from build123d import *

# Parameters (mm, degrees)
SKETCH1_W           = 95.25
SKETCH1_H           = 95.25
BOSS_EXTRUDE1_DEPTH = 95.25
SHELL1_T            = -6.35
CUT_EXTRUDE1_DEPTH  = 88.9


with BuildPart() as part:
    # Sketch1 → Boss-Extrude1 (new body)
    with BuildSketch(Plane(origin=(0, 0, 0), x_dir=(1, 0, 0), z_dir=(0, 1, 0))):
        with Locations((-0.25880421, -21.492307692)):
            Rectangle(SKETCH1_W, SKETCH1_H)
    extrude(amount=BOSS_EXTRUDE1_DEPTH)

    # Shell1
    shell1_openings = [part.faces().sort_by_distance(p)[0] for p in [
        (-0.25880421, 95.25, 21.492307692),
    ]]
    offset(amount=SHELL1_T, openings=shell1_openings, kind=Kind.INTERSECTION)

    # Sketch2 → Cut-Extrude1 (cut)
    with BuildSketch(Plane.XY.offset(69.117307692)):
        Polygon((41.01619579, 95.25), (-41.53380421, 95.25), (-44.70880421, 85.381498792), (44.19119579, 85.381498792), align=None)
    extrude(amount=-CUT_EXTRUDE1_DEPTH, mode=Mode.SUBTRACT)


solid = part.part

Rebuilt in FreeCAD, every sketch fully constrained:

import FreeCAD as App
import Part
import Sketcher
from FreeCAD import Vector
Q = App.Units.Quantity


def faces_at(feature, points):
    """Names of the faces that lie closest to the given points."""
    faces = feature.Shape.Faces
    near = lambda p: min(range(len(faces)), key=lambda i: faces[i].distToShape(Part.Vertex(*p))[0])
    return sorted({f"Face{near(p) + 1}" for p in points})


def add_polygon(sketch, points):
    """Adds a closed chain of lines whose ends are joined by coincident constraints."""
    first, n = sketch.GeometryCount, len(points)
    for a, b in zip(points, points[1:] + points[:1]):
        sketch.addGeometry(Part.LineSegment(App.Vector(*a, 0), App.Vector(*b, 0)), False)
    for i in range(n):
        sketch.addConstraint(Sketcher.Constraint("Coincident", first + i, 2, first + (i + 1) % n, 1))

doc = App.newDocument("Part")
body = doc.addObject("PartDesign::Body", "Body")

# Sketch on XZ plane
sketch1 = body.newObject("Sketcher::SketchObject", "Sketch")
sketch1.AttachmentSupport = (doc.getObject("XZ_Plane"), [""])
sketch1.MapMode = "FlatFace"
add_polygon(sketch1, [(-47.883804, -26.132692), (-47.883804, 69.117308), (47.366196, 69.117308), (47.366196, -26.132692)])  # lines 0-3
sketch1.addConstraint([
    Sketcher.Constraint("Vertical", 0),
    Sketcher.Constraint("Horizontal", 1),
    Sketcher.Constraint("Vertical", 2),
    Sketcher.Constraint("Horizontal", 3),
    Sketcher.Constraint("Equal", 3, 0),
    Sketcher.Constraint("DistanceX", 1, 1, 1, 2, Q("3.75 in")),
    Sketcher.Constraint("DistanceX", 0, 2, -1, 1, Q("47.883804 mm")),
    Sketcher.Constraint("DistanceY", -1, 1, 0, 2, Q("69.117308 mm")),
])
pad1 = body.newObject("PartDesign::Pad", "Pad")
pad1.Profile = sketch1
pad1.Length = Q("3.75 in")
pad1.Reversed = True
doc.recompute()

thickness = body.newObject("PartDesign::Thickness", "Thickness")
thickness.Base = (pad1, faces_at(pad1, [(-0.259, 95.25, 21.492)]))
thickness.Value = Q("0.25 in")
thickness.Reversed = True
thickness.Join = "Intersection"

# Sketch on XY plane
sketch2 = body.newObject("Sketcher::SketchObject", "Sketch001")
sketch2.AttachmentSupport = (doc.getObject("XY_Plane"), [""])
sketch2.MapMode = "FlatFace"
sketch2.AttachmentOffset = App.Placement(Vector(0, 0, 69.117308), App.Rotation())
add_polygon(sketch2, [(41.016196, 95.25), (-41.533804, 95.25), (-44.708804, 85.381499), (44.191196, 85.381499)])  # lines 0-3
sketch2.addConstraint([
    Sketcher.Constraint("Horizontal", 0),
    Sketcher.Constraint("Horizontal", 2),
    Sketcher.Constraint("Equal", 1, 3),
    Sketcher.Constraint("DistanceX", 2, 1, 2, 2, Q("3.5 in")),
    Sketcher.Constraint("DistanceX", 0, 2, 0, 1, Q("3.25 in")),
    Sketcher.Constraint("DistanceY", -1, 1, 0, 2, Q("3.75 in")),
    Sketcher.Constraint("DistanceY", -1, 1, 1, 2, Q("85.381499 mm")),
    Sketcher.Constraint("DistanceX", 0, 2, -1, 1, Q("41.533804 mm")),
])
pocket1 = body.newObject("PartDesign::Pocket", "Pocket")
pocket1.Profile = sketch2
pocket1.Length = Q("3.5 in")

doc.recompute()
